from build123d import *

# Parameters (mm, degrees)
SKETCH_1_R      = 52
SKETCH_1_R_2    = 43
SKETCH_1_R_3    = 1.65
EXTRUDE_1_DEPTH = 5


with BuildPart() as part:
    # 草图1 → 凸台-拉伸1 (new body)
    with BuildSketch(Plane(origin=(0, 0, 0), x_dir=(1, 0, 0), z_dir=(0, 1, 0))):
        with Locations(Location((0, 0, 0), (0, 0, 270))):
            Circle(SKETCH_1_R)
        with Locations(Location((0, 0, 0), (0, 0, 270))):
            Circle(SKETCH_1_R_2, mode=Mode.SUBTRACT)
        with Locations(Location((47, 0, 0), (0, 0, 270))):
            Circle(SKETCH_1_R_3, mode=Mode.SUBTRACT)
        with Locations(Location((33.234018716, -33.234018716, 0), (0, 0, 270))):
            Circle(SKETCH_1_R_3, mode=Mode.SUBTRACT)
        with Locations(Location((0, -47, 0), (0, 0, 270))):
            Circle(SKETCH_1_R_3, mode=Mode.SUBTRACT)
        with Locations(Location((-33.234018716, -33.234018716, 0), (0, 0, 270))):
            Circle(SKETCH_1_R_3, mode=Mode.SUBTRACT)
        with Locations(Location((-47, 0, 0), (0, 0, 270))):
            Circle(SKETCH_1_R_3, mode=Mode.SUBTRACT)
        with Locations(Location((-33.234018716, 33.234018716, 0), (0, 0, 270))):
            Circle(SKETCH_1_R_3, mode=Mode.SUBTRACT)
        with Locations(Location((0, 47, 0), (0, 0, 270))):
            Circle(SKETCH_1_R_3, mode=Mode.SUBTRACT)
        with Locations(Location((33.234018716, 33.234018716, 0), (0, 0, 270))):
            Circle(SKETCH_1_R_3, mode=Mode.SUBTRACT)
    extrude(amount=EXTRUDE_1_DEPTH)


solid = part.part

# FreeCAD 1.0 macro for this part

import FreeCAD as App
import Part
import Sketcher

V = App.Vector

doc = App.newDocument("Part")
params = doc.addObject("Spreadsheet::Sheet", "Params")
for row, (alias, value) in enumerate([
    ("sketch1_diameter", "104 mm"),
    ("sketch1_diameter2", "86 mm"),
    ("sketch1_diameter3", "3.3 mm"),
    ("pad1_length", "5 mm"),
], start=1):
    params.set(f"A{row}", alias)
    params.set(f"B{row}", "=" + value)
    params.setAlias(f"B{row}", alias)

body = doc.addObject("PartDesign::Body", "Body")

# Sketch on XZ plane
sketch1 = body.newObject("Sketcher::SketchObject", "Sketch")
sketch1.AttachmentSupport = (doc.getObject("XZ_Plane"), [""])
sketch1.MapMode = "FlatFace"
sketch1.addGeometry(Part.Circle(V(0, 0, 0), V(0, 0, 1), 52), False)
sketch1.addGeometry(Part.Circle(V(-33.2, -33.2, 0), V(0, 0, 1), 1.6), False)
sketch1.addGeometry(Part.Circle(V(0, -47, 0), V(0, 0, 1), 1.6), False)
sketch1.addGeometry(Part.Circle(V(-47, 0, 0), V(0, 0, 1), 1.6), False)
sketch1.addGeometry(Part.Circle(V(-33.2, 33.2, 0), V(0, 0, 1), 1.6), False)
sketch1.addGeometry(Part.Circle(V(33.2, -33.2, 0), V(0, 0, 1), 1.6), False)
sketch1.addGeometry(Part.Circle(V(47, 0, 0), V(0, 0, 1), 1.6), False)
sketch1.addGeometry(Part.Circle(V(0, 0, 0), V(0, 0, 1), 43), False)
sketch1.addGeometry(Part.Circle(V(0, 47, 0), V(0, 0, 1), 1.6), False)
sketch1.addGeometry(Part.Circle(V(33.2, 33.2, 0), V(0, 0, 1), 1.6), False)
sketch1.addConstraint(Sketcher.Constraint("Coincident", 0, 3, -1, 1))
sketch1.addConstraint(Sketcher.Constraint("Coincident", 7, 3, -1, 1))
sketch1.addConstraint(Sketcher.Constraint("Equal", 1, 2))
sketch1.addConstraint(Sketcher.Constraint("Equal", 2, 3))
sketch1.addConstraint(Sketcher.Constraint("Equal", 3, 4))
sketch1.addConstraint(Sketcher.Constraint("Equal", 4, 5))
sketch1.addConstraint(Sketcher.Constraint("Equal", 5, 6))
sketch1.addConstraint(Sketcher.Constraint("Equal", 6, 8))
sketch1.addConstraint(Sketcher.Constraint("Equal", 8, 9))
sketch1.addConstraint(Sketcher.Constraint("Symmetric", 4, 3, 5, 3, -1, 1))
sketch1.addConstraint(Sketcher.Constraint("Symmetric", 3, 3, 6, 3, -1, 1))
sketch1.addConstraint(Sketcher.Constraint("Symmetric", 2, 3, 8, 3, -1, 1))
sketch1.addConstraint(Sketcher.Constraint("Symmetric", 1, 3, 9, 3, -1, 1))
sketch1.addConstraint(Sketcher.Constraint("Symmetric", 1, 3, 5, 3, -2))
sketch1.addConstraint(Sketcher.Constraint("PointOnObject", 2, 3, -2))
sketch1.addConstraint(Sketcher.Constraint("PointOnObject", 3, 3, -1))
sketch1.addConstraint(Sketcher.Constraint("Diameter", 0, 104.0))
sketch1.addConstraint(Sketcher.Constraint("Diameter", 7, 86.0))
sketch1.addConstraint(Sketcher.Constraint("Diameter", 1, 3.3))
sketch1.addConstraint(Sketcher.Constraint("DistanceY", 2, 3, -1, 1, 47.0))
sketch1.addConstraint(Sketcher.Constraint("DistanceX", 3, 3, -1, 1, 47.0))
sketch1.addConstraint(Sketcher.Constraint("DistanceX", 1, 3, -1, 1, 33.234019))
sketch1.addConstraint(Sketcher.Constraint("DistanceY", 1, 3, -1, 1, 33.234019))
sketch1.setExpression("Constraints[16]", "Params.sketch1_diameter")
sketch1.setExpression("Constraints[17]", "Params.sketch1_diameter2")
sketch1.setExpression("Constraints[18]", "Params.sketch1_diameter3")
pad1 = body.newObject("PartDesign::Pad", "Pad")
pad1.Profile = sketch1
pad1.setExpression("Length", "Params.pad1_length")
pad1.Reversed = True

doc.recompute()
